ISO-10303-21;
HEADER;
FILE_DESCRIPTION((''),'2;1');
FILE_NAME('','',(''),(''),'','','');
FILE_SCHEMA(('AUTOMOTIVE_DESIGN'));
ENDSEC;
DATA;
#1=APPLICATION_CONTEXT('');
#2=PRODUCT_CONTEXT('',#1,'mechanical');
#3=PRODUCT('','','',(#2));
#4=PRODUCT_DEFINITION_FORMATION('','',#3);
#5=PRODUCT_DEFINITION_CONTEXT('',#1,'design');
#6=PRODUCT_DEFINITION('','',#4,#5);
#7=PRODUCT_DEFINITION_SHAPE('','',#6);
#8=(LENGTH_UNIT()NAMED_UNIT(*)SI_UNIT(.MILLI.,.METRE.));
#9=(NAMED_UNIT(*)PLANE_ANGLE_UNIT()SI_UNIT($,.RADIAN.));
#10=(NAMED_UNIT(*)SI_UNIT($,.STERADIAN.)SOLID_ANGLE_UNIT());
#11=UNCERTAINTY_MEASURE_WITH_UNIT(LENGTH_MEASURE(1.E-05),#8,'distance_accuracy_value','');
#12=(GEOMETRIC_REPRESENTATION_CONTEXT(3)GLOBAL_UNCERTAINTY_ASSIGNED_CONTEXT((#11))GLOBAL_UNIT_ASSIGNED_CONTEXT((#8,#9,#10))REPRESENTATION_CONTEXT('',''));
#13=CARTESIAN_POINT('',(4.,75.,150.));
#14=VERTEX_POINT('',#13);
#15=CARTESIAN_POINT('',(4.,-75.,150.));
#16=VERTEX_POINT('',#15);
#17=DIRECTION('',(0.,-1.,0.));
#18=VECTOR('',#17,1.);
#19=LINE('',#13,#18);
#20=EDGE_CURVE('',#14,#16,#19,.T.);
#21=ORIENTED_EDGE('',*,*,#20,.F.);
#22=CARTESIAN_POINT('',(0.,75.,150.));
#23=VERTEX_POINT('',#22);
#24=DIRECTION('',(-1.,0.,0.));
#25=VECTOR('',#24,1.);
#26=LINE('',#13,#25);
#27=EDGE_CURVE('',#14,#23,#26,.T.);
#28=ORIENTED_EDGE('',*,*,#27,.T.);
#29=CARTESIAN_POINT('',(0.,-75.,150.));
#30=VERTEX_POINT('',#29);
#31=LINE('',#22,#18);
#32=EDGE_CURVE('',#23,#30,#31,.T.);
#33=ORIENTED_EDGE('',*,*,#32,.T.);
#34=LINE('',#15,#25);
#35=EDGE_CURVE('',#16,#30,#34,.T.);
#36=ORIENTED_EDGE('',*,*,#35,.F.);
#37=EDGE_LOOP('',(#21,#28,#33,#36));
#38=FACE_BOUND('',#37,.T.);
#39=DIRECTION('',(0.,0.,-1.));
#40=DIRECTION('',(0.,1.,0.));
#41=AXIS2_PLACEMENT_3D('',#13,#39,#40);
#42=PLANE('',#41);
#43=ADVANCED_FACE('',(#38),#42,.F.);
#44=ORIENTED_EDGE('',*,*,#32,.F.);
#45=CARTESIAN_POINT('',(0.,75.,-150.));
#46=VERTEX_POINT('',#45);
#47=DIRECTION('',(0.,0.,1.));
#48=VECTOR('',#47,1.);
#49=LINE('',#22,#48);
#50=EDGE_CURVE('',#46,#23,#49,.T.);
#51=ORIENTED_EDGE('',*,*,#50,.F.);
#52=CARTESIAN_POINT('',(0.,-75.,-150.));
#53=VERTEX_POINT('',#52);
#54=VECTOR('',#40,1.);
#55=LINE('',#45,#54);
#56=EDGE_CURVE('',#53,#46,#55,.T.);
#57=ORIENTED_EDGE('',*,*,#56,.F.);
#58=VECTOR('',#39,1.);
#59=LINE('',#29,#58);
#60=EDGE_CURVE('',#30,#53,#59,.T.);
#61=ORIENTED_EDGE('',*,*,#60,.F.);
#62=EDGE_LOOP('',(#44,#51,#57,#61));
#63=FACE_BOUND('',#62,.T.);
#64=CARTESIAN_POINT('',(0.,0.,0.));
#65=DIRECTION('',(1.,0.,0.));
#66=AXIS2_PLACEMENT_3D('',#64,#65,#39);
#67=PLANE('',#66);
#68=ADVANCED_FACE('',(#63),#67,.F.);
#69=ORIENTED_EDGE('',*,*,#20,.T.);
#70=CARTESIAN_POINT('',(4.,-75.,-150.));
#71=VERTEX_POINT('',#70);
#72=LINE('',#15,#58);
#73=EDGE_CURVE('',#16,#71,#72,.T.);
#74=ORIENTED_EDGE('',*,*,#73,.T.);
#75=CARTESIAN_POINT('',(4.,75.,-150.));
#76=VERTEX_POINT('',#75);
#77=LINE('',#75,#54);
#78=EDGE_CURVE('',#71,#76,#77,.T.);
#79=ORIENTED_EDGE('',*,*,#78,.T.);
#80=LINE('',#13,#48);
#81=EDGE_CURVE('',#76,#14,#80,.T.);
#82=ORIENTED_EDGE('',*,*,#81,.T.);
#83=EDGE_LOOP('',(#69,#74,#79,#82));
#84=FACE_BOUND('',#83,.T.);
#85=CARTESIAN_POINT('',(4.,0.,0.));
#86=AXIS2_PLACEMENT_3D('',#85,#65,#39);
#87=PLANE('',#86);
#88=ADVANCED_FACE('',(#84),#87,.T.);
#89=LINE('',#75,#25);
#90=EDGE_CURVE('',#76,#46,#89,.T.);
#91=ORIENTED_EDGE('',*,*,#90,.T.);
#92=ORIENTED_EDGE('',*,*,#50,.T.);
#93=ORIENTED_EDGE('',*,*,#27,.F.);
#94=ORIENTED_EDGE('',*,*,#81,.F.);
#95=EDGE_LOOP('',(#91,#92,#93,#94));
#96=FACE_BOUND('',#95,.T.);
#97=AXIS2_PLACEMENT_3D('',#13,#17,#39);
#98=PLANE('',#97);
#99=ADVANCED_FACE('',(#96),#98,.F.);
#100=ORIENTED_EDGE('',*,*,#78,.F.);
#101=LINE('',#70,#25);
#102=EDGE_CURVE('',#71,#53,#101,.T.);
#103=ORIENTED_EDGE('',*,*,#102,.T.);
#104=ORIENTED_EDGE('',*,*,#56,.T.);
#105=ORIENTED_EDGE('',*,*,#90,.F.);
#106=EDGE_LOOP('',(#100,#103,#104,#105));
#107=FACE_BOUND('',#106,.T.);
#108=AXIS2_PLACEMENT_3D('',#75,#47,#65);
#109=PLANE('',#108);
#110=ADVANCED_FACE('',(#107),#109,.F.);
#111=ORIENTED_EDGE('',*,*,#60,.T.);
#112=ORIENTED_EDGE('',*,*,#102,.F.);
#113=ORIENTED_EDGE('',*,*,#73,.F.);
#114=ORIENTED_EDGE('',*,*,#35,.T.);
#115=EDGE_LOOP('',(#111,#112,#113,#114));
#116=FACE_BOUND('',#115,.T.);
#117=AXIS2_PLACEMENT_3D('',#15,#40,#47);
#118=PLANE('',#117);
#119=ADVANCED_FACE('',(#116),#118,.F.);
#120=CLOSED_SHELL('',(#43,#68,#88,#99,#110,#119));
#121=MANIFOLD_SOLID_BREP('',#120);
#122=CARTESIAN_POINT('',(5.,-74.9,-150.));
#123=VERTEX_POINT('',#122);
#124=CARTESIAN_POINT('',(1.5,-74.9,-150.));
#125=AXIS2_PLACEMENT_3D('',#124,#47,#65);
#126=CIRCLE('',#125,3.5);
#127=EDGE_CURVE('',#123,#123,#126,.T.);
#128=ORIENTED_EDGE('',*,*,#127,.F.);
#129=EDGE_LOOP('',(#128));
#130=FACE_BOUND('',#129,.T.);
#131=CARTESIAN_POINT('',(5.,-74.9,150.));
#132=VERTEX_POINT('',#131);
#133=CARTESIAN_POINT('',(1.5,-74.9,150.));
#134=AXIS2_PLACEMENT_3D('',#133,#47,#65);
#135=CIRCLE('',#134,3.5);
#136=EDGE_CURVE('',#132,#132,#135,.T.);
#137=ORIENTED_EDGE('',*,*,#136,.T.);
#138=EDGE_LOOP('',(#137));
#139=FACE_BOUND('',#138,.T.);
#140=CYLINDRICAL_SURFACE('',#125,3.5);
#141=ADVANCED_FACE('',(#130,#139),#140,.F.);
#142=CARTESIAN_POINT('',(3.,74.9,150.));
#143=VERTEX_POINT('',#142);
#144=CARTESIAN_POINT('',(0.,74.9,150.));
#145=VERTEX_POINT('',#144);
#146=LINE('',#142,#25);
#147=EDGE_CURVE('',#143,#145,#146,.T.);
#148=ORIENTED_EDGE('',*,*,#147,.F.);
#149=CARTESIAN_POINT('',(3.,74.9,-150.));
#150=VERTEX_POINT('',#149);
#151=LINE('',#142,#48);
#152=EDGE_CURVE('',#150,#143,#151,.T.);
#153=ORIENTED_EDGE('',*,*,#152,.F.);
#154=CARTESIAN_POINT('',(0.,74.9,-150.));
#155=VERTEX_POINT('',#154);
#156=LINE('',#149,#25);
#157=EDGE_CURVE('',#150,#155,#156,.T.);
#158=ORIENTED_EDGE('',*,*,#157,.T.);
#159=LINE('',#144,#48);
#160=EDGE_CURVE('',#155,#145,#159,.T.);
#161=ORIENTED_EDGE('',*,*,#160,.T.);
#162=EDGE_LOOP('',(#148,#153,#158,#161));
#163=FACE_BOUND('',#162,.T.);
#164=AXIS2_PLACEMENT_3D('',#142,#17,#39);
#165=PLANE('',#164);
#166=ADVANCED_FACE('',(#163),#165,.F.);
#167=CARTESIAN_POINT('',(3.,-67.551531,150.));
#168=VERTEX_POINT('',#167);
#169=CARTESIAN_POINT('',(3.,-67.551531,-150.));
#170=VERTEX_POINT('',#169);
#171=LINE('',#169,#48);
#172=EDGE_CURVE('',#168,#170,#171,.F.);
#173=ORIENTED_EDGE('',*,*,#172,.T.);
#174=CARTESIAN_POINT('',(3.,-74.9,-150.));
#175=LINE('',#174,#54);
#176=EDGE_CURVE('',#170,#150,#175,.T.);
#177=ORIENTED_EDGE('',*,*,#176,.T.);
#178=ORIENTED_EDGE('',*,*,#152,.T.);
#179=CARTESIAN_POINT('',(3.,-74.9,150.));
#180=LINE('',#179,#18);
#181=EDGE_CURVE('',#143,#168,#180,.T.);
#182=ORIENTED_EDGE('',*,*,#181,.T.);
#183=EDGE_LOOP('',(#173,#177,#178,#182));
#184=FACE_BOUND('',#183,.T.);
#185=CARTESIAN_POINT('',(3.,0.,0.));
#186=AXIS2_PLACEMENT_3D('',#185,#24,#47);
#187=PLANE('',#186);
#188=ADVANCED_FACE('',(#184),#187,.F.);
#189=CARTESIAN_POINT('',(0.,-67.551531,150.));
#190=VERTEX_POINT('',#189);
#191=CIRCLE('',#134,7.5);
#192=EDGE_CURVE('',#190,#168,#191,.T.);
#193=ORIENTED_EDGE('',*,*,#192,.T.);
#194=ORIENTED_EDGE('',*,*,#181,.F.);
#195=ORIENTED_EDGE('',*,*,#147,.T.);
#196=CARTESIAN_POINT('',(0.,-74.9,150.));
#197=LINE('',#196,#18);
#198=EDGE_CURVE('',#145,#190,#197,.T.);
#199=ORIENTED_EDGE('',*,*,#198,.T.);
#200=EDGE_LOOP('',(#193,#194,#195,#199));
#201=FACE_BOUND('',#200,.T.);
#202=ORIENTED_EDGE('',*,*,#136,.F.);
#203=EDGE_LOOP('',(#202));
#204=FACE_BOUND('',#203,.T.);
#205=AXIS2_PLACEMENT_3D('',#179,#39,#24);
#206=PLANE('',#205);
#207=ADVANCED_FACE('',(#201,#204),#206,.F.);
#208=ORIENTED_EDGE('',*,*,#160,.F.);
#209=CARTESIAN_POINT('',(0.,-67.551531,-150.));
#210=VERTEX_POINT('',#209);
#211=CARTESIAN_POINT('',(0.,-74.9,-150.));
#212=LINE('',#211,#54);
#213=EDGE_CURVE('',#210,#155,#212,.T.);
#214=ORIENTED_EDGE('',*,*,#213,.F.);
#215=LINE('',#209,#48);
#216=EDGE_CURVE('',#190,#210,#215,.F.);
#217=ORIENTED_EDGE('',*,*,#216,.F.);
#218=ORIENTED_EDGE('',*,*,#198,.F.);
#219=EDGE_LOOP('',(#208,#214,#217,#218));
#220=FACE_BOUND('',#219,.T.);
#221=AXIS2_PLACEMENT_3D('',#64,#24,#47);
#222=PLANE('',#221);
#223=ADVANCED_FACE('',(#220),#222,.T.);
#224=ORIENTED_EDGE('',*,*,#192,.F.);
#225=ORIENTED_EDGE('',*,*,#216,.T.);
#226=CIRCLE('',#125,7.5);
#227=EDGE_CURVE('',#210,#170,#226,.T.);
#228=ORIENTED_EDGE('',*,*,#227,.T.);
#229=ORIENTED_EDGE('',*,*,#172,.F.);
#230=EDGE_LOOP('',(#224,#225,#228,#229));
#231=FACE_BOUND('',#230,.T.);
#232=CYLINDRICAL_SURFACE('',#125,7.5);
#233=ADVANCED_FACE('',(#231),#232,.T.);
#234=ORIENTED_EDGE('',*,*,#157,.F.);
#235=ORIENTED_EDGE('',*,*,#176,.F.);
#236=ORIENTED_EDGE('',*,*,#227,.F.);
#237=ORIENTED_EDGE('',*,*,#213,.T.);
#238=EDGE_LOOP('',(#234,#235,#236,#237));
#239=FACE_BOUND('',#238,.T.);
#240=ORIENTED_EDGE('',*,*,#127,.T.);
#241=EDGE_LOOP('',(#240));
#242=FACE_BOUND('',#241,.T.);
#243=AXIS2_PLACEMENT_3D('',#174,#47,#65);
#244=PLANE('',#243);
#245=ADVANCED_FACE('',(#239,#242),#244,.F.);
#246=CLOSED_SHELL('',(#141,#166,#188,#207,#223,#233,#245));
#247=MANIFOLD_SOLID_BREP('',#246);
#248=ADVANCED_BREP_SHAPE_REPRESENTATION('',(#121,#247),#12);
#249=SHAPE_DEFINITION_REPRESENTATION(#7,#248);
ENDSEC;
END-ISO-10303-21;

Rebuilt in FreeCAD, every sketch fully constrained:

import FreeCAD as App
import Part
import Sketcher
from FreeCAD import Vector

doc = App.newDocument("Part")
body = doc.addObject("PartDesign::Body", "Body")

sketch1 = body.newObject("Sketcher::SketchObject", "Sketch")
sketch1.AttachmentSupport = (doc.getObject("YZ_Plane"), [""])
sketch1.MapMode = "FlatFace"
sketch1.addGeometry([
    Part.LineSegment(Vector(75, 150, 0), Vector(-75, 150, 0)),
    Part.LineSegment(Vector(-75, 150, 0), Vector(-75, -150, 0)),
    Part.LineSegment(Vector(-75, -150, 0), Vector(75, -150, 0)),
    Part.LineSegment(Vector(75, -150, 0), Vector(75, 150, 0)),
], False)
sketch1.addConstraint([
    Sketcher.Constraint("Coincident", 0, 2, 1, 1),
    Sketcher.Constraint("Coincident", 1, 2, 2, 1),
    Sketcher.Constraint("Coincident", 2, 2, 3, 1),
    Sketcher.Constraint("Coincident", 3, 2, 0, 1),
    Sketcher.Constraint("Horizontal", 0),
    Sketcher.Constraint("Vertical", 1),
    Sketcher.Constraint("Horizontal", 2),
    Sketcher.Constraint("Vertical", 3),
    Sketcher.Constraint("Symmetric", 0, 2, 2, 2, -1, 1),
    Sketcher.Constraint("DistanceY", 1, 2, 1, 1, 300.0),
    Sketcher.Constraint("DistanceX", 0, 2, 0, 1, 149.8),
])
pad1 = body.newObject("PartDesign::Pad", "Pad")
pad1.Profile = sketch1
pad1.Length = 3

sketch2 = body.newObject("Sketcher::SketchObject", "Sketch001")
sketch2.AttachmentSupport = (doc.getObject("XY_Plane"), [""])
sketch2.MapMode = "FlatFace"
sketch2.AttachmentOffset = App.Placement(Vector(0, 0, 150), App.Rotation())
sketch2.addGeometry(Part.Circle(Vector(2, -75, 0), Vector(0, 0, 1), 8), False)
sketch2.addConstraint([
    Sketcher.Constraint("Diameter", 0, 15.0),
    Sketcher.Constraint("DistanceX", -1, 1, 0, 3, 1.5),
    Sketcher.Constraint("DistanceY", 0, 3, -1, 1, 74.9),
])

sketch3 = body.newObject("Sketcher::SketchObject", "Sketch002")
sketch3.AttachmentSupport = (doc.getObject("XZ_Plane"), [""])
sketch3.MapMode = "FlatFace"
sketch3.AttachmentOffset = App.Placement(Vector(0, 0, 74.9), App.Rotation())
sketch3.addGeometry(Part.LineSegment(Vector(3, 150, 0), Vector(3, -150, 0)), False)
sketch3.addConstraint([
    Sketcher.Constraint("Vertical", 0),
    Sketcher.Constraint("DistanceY", 0, 2, 0, 1, 300.0),
    Sketcher.Constraint("DistanceX", -1, 1, 0, 1, 3.0),
    Sketcher.Constraint("DistanceY", -1, 1, 0, 1, 150.0),
])
doc.recompute()

additivepipe = body.newObject("PartDesign::AdditivePipe", "AdditivePipe")
additivepipe.Profile = sketch2
additivepipe.Spine = (sketch3, ["Edge1"])

sketch4 = body.newObject("Sketcher::SketchObject", "Sketch003")
sketch4.AttachmentSupport = (doc.getObject("XY_Plane"), [""])
sketch4.MapMode = "FlatFace"
sketch4.AttachmentOffset = App.Placement(Vector(0, 0, 150), App.Rotation())
sketch4.addGeometry(Part.Circle(Vector(1.5, -74.9, 0), Vector(0, 0, 1), 3.5), False)
sketch4.addConstraint([
    Sketcher.Constraint("Diameter", 0, 7.0),
    Sketcher.Constraint("DistanceX", -1, 1, 0, 3, 1.5),
    Sketcher.Constraint("DistanceY", 0, 3, -1, 1, 74.9),
])
pocket1 = body.newObject("PartDesign::Pocket", "Pocket")
pocket1.Profile = sketch4
pocket1.Type = "ThroughAll"
body2 = doc.addObject("PartDesign::Body", "Body001")

sketch5 = body2.newObject("Sketcher::SketchObject", "Sketch004")
sketch5.AttachmentSupport = (doc.getObject("YZ_Plane001"), [""])
sketch5.MapMode = "FlatFace"
sketch5.addGeometry([
    Part.LineSegment(Vector(75, 150, 0), Vector(-75, 150, 0)),
    Part.LineSegment(Vector(-75, 150, 0), Vector(-75, -150, 0)),
    Part.LineSegment(Vector(-75, -150, 0), Vector(75, -150, 0)),
    Part.LineSegment(Vector(75, -150, 0), Vector(75, 150, 0)),
], False)
sketch5.addConstraint([
    Sketcher.Constraint("Coincident", 0, 2, 1, 1),
    Sketcher.Constraint("Coincident", 1, 2, 2, 1),
    Sketcher.Constraint("Coincident", 2, 2, 3, 1),
    Sketcher.Constraint("Coincident", 3, 2, 0, 1),
    Sketcher.Constraint("Horizontal", 0),
    Sketcher.Constraint("Vertical", 1),
    Sketcher.Constraint("Horizontal", 2),
    Sketcher.Constraint("Vertical", 3),
    Sketcher.Constraint("Symmetric", 0, 2, 2, 2, -1, 1),
    Sketcher.Constraint("DistanceX", 0, 2, 0, 1, 150.0),
    Sketcher.Constraint("DistanceY", 1, 2, 1, 1, 300.0),
])
pad2 = body2.newObject("PartDesign::Pad", "Pad001")
pad2.Profile = sketch5
pad2.Length = 4

doc.recompute()
